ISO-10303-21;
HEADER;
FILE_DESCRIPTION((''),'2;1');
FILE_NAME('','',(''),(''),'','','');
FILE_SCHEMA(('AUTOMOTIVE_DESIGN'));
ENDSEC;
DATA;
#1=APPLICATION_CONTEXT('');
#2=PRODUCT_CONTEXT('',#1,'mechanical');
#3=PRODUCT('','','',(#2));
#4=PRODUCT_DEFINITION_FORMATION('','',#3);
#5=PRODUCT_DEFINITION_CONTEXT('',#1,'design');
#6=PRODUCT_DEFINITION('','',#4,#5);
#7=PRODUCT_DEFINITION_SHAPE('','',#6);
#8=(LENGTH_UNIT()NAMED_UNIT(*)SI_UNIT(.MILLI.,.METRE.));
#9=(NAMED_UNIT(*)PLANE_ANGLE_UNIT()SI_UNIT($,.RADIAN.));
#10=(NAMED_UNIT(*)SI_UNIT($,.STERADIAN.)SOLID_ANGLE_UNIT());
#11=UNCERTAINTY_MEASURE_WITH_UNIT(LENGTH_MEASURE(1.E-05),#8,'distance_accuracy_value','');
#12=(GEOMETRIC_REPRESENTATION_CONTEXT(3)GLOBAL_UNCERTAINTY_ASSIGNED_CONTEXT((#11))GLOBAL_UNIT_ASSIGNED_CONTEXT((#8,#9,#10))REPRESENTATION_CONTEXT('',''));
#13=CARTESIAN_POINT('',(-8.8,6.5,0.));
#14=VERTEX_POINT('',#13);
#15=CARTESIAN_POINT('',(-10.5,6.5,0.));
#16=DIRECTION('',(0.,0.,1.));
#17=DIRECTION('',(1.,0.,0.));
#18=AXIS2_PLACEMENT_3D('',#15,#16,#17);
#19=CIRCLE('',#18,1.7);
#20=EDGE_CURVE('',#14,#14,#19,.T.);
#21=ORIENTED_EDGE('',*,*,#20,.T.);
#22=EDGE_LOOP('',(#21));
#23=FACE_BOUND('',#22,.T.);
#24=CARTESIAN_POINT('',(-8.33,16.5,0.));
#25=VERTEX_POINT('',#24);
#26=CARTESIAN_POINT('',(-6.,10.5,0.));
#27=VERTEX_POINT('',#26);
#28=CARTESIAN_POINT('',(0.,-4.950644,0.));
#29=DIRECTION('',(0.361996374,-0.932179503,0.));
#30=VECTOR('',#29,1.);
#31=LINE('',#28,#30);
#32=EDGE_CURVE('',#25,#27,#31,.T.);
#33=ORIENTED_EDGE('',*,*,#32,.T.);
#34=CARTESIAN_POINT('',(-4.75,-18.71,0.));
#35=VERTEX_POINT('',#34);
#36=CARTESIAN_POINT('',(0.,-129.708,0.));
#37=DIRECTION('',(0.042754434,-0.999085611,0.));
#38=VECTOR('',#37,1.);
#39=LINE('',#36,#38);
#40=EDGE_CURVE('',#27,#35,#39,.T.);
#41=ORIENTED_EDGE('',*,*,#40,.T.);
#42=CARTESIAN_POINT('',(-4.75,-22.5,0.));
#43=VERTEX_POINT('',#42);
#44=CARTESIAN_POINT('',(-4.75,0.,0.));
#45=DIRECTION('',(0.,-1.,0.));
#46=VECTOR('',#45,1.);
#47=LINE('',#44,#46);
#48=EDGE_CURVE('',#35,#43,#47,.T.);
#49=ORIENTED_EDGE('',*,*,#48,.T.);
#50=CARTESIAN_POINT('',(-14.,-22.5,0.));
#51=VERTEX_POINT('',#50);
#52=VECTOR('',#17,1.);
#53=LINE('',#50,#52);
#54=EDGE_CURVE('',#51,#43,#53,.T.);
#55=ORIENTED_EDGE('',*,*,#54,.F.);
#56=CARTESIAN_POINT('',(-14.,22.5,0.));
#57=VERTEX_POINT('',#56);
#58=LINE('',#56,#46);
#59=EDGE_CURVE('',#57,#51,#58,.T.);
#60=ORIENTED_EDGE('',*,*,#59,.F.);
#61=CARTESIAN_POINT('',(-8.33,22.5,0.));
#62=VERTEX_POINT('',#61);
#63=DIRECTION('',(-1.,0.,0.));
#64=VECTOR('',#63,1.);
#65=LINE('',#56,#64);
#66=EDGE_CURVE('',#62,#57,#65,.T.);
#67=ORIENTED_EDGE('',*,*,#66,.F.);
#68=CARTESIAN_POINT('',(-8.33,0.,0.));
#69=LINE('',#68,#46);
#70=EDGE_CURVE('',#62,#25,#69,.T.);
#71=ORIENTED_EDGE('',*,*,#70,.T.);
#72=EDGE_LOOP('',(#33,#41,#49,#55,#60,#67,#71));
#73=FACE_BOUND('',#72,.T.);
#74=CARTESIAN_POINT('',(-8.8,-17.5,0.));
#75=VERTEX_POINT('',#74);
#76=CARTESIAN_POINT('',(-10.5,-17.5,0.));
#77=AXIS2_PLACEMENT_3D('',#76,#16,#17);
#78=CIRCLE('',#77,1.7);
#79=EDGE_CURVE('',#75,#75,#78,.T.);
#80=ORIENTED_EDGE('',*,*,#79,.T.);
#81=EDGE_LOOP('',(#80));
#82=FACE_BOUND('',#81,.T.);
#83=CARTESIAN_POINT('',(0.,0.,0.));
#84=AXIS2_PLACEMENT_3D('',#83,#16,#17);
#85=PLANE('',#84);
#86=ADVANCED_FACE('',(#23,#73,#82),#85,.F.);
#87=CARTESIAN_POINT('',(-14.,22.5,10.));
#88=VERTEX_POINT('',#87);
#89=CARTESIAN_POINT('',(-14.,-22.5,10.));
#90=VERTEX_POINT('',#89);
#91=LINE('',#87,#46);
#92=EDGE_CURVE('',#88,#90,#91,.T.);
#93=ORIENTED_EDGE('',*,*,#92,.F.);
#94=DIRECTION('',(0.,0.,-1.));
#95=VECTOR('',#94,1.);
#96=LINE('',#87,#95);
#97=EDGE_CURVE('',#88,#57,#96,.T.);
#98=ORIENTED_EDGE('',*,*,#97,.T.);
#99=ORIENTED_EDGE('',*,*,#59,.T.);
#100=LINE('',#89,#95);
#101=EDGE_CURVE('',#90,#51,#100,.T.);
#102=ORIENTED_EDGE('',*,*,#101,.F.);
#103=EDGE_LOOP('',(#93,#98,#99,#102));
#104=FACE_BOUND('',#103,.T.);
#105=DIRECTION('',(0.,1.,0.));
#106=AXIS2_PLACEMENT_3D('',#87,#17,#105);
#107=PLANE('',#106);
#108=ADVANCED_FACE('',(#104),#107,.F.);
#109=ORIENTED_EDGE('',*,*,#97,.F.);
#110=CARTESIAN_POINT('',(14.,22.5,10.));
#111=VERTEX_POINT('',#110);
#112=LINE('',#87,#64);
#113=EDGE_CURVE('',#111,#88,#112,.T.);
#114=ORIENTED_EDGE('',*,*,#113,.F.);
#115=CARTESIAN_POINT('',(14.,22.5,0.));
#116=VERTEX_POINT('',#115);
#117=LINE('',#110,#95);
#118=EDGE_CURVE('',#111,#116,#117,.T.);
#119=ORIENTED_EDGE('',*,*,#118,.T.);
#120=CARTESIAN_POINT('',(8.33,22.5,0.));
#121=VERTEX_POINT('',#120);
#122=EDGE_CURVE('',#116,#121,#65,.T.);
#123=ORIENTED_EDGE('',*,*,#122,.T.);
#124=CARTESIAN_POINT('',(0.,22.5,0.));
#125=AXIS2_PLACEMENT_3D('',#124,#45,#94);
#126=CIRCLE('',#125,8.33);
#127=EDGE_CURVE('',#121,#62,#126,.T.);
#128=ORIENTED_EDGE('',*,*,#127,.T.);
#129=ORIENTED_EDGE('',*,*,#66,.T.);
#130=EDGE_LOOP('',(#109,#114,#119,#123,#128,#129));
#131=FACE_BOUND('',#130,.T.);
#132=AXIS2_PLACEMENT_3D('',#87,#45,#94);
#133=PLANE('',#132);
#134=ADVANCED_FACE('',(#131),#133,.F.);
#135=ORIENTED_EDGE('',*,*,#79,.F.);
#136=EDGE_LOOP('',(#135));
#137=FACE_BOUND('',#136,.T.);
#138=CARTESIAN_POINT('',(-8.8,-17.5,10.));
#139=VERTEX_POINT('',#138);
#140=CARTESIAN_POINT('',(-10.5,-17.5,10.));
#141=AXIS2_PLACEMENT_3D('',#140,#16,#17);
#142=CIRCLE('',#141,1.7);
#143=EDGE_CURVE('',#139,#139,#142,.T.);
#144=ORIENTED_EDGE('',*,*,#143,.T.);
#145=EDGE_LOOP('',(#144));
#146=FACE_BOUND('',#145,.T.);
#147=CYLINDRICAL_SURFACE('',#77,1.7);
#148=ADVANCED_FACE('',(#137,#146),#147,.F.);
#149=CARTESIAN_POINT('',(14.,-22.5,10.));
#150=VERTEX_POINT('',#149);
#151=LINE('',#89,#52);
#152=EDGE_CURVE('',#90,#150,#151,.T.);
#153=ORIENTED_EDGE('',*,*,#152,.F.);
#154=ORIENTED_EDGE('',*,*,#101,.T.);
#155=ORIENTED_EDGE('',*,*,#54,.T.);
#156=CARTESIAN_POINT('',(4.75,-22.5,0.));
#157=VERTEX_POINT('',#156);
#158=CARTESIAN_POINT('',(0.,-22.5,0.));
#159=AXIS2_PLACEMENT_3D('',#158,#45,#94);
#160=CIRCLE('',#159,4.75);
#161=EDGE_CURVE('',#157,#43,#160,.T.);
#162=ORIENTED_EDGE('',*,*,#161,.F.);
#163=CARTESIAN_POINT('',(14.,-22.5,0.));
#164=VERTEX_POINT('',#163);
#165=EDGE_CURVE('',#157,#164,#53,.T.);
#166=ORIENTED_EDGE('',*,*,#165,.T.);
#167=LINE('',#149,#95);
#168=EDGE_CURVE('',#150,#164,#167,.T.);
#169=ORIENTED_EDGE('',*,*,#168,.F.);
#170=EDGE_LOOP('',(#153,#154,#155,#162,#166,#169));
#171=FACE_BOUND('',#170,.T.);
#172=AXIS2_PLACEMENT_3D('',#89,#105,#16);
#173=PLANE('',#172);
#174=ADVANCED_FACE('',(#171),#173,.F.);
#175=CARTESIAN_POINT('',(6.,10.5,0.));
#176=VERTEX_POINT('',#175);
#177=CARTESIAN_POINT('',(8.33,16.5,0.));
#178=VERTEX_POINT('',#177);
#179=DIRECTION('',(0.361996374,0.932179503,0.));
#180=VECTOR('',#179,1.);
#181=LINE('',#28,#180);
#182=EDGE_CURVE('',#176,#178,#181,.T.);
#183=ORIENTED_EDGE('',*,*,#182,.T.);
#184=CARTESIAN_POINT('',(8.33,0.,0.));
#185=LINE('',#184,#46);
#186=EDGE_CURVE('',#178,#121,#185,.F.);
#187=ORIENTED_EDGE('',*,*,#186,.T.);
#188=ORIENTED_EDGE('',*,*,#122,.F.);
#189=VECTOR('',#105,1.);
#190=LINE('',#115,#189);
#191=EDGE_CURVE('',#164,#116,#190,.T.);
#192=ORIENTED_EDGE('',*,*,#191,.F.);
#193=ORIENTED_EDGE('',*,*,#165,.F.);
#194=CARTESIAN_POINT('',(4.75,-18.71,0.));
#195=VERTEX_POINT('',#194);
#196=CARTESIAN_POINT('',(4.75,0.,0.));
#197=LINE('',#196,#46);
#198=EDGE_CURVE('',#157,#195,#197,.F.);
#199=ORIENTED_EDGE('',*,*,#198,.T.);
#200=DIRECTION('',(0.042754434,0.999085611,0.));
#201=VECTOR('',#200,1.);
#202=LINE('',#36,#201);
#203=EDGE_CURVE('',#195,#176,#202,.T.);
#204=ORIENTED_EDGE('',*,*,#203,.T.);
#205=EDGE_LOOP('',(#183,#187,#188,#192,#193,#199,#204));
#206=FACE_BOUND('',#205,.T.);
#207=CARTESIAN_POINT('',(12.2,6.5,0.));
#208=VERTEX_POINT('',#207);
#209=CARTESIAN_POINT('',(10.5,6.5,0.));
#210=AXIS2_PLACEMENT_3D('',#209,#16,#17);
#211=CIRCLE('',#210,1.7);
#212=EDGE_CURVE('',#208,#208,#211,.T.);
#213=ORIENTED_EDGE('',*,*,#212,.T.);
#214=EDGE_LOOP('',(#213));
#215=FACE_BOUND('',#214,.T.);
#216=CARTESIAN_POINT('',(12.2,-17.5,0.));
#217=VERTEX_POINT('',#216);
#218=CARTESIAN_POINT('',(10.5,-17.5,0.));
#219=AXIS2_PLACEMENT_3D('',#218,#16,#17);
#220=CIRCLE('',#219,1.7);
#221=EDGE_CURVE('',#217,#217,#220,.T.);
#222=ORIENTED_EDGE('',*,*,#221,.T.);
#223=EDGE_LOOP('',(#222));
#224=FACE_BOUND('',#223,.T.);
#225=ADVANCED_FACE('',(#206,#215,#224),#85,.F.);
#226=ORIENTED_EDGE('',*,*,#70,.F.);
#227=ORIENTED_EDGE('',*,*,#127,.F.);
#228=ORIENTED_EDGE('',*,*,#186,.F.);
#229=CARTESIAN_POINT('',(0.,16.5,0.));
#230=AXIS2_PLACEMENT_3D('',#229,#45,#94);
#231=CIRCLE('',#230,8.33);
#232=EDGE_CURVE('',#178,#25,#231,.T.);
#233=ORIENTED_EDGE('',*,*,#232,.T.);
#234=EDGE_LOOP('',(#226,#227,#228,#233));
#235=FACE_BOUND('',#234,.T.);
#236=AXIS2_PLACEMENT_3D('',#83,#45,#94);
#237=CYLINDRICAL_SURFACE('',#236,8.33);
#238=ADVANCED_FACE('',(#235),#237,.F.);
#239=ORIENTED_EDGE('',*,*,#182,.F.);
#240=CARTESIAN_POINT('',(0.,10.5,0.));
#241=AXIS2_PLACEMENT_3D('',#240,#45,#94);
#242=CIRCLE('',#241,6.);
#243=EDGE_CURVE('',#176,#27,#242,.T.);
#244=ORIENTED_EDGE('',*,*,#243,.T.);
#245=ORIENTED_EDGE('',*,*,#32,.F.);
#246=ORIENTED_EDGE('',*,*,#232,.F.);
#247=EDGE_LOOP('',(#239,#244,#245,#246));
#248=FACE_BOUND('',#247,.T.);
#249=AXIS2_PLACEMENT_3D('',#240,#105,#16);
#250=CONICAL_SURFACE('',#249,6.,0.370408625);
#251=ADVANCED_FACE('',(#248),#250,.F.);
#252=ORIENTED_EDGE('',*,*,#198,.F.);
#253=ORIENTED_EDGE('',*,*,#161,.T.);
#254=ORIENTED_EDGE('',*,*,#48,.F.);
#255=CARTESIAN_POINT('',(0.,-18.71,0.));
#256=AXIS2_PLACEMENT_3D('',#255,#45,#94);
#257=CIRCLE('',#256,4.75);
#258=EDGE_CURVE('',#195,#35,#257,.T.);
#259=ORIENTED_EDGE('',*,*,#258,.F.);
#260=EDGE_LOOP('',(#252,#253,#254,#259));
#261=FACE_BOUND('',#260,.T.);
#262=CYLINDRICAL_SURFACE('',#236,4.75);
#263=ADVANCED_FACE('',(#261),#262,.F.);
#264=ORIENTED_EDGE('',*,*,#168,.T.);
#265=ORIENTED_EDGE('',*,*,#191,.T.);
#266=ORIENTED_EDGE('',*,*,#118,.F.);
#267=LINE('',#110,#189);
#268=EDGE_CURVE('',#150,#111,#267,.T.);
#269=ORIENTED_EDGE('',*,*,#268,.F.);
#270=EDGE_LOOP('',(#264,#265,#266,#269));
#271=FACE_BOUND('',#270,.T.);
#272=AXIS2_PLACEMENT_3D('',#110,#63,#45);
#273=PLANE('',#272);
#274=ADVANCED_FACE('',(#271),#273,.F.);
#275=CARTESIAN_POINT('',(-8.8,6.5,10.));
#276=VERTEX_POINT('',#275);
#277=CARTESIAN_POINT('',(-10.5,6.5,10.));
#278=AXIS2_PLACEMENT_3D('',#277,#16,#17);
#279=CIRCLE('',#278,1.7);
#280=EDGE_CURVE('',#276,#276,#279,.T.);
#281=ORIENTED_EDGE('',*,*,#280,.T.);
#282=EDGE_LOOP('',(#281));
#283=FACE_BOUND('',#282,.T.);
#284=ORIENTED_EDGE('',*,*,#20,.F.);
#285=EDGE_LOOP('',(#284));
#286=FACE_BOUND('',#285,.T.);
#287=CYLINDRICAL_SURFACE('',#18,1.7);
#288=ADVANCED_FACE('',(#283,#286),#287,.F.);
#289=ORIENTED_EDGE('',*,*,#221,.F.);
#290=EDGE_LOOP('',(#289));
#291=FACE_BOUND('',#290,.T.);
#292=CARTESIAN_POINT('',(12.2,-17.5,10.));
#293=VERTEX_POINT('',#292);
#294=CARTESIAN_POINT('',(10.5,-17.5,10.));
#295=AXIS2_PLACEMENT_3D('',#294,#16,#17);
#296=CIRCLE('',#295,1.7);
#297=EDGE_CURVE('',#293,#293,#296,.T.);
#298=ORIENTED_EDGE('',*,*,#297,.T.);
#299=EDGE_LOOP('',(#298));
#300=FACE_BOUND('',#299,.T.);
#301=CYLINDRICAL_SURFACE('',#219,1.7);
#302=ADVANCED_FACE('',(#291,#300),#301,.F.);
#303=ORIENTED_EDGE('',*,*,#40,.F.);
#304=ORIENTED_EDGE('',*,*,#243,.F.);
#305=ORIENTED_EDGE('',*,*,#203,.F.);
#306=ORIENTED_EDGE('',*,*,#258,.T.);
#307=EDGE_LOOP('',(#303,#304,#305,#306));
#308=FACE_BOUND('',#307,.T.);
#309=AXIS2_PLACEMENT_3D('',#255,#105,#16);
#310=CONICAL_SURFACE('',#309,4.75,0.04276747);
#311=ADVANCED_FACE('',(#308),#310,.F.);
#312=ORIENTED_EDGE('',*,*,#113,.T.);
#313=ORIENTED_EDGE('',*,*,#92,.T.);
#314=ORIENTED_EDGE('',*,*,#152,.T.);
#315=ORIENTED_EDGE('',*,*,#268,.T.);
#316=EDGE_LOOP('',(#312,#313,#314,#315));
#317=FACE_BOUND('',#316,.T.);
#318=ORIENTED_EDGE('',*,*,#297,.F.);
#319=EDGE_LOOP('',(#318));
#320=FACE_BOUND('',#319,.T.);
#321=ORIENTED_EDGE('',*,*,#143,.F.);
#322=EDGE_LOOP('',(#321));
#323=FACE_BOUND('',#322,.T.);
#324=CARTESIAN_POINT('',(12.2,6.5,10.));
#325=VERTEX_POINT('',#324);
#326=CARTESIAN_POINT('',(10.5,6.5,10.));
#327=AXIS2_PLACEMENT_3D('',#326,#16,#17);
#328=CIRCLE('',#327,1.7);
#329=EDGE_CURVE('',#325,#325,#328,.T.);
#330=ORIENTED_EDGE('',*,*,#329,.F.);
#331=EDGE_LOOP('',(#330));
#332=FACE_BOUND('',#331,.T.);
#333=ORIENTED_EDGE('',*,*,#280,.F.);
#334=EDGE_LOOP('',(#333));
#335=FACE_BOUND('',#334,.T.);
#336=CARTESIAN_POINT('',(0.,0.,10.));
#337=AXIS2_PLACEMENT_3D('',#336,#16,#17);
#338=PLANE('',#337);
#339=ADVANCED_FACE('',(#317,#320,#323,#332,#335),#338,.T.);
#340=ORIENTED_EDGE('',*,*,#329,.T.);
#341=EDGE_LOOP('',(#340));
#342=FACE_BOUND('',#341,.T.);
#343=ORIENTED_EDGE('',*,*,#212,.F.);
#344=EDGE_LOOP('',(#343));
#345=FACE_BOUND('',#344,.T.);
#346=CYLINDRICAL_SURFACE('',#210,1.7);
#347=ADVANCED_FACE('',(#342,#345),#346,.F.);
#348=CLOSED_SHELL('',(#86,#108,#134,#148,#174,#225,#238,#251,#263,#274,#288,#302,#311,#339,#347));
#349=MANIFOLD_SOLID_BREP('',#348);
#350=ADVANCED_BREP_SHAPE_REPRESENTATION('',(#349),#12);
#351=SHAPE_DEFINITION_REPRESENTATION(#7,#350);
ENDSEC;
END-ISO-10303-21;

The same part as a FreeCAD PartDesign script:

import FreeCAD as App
import Part
import Sketcher

V = App.Vector
Q = App.Units.Quantity


def add_polygon(sketch, points):
    """Adds a closed chain of lines whose ends are joined by coincident constraints."""
    first, n = sketch.GeometryCount, len(points)
    for a, b in zip(points, points[1:] + points[:1]):
        sketch.addGeometry(Part.LineSegment(App.Vector(*a, 0), App.Vector(*b, 0)), False)
    for i in range(n):
        sketch.addConstraint(Sketcher.Constraint("Coincident", first + i, 2, first + (i + 1) % n, 1))

doc = App.newDocument("Part")
body = doc.addObject("PartDesign::Body", "Body")

# Sketch on XY plane
sketch1 = doc.addObject("Sketcher::SketchObject", "Sketch")
body.addObject(sketch1)
sketch1.AttachmentSupport = (doc.XY_Plane, [""])
sketch1.MapMode = "FlatFace"
add_polygon(sketch1, [(-14, 22), (-14, -22), (14, -22), (14, 22)])  # lines 0-3
sketch1.addConstraint(Sketcher.Constraint("Vertical", 0))
sketch1.addConstraint(Sketcher.Constraint("Horizontal", 1))
sketch1.addConstraint(Sketcher.Constraint("Vertical", 2))
sketch1.addConstraint(Sketcher.Constraint("Horizontal", 3))
sketch1.addConstraint(Sketcher.Constraint("Symmetric", 0, 2, 2, 2, -1, 1))
sketch1.addConstraint(Sketcher.Constraint("DistanceX", 1, 1, 1, 2, Q("28 mm")))
sketch1.addConstraint(Sketcher.Constraint("DistanceY", 0, 2, 0, 1, Q("45 mm")))
pad1 = doc.addObject("PartDesign::Pad", "Pad")
body.addObject(pad1)
pad1.Profile = sketch1
pad1.Length = 10

# Sketch on XY plane
sketch2 = doc.addObject("Sketcher::SketchObject", "Sketch001")
body.addObject(sketch2)
sketch2.AttachmentSupport = (doc.XY_Plane, [""])
sketch2.MapMode = "FlatFace"
add_polygon(sketch2, [(8.3, 22.5), (0, 22.5), (0, -22.5), (4.8, -22.5), (4.8, -18.7), (6, 10.5), (8.3, 16.5)])  # lines 0-6
sketch2.addConstraint(Sketcher.Constraint("Horizontal", 0))
sketch2.addConstraint(Sketcher.Constraint("Vertical", 1))
sketch2.addConstraint(Sketcher.Constraint("Horizontal", 2))
sketch2.addConstraint(Sketcher.Constraint("Vertical", 3))
sketch2.addConstraint(Sketcher.Constraint("Vertical", 6))
sketch2.addConstraint(Sketcher.Constraint("Symmetric", 0, 2, 1, 2, -1, 1))
sketch2.addConstraint(Sketcher.Constraint("DistanceY", 1, 2, 1, 1, Q("45 mm")))
sketch2.addConstraint(Sketcher.Constraint("DistanceY", 6, 1, 6, 2, Q("6 mm")))
sketch2.addConstraint(Sketcher.Constraint("DistanceX", -1, 1, 4, 2, Q("6 mm")))
sketch2.addConstraint(Sketcher.Constraint("DistanceY", 4, 2, 0, 2, Q("12 mm")))
sketch2.addConstraint(Sketcher.Constraint("DistanceX", 0, 2, 0, 1, Q("8.33 mm")))
sketch2.addConstraint(Sketcher.Constraint("DistanceX", 2, 1, 2, 2, Q("4.75 mm")))
sketch2.addConstraint(Sketcher.Constraint("DistanceY", 3, 1, 3, 2, Q("3.79 mm")))
groove = doc.addObject("PartDesign::Groove", "Groove")
body.addObject(groove)
groove.Profile = sketch2
groove.ReferenceAxis = (sketch2, ["V_Axis"])
groove.Angle = 360

# Sketch on XY plane
sketch3 = doc.addObject("Sketcher::SketchObject", "Sketch002")
body.addObject(sketch3)
sketch3.AttachmentSupport = (doc.XY_Plane, [""])
sketch3.MapMode = "FlatFace"
sketch3.AttachmentOffset = App.Placement(V(0, 0, 10), App.Rotation())
sketch3.addGeometry(Part.Circle(V(-10.5, 6.5, 0), V(0, 0, 1), 1.7), False)
sketch3.addGeometry(Part.Circle(V(-10.5, -17.5, 0), V(0, 0, 1), 1.7), False)
sketch3.addGeometry(Part.Circle(V(10.5, 6.5, 0), V(0, 0, 1), 1.7), False)
sketch3.addGeometry(Part.Circle(V(10.5, -17.5, 0), V(0, 0, 1), 1.7), False)
sketch3.addConstraint(Sketcher.Constraint("Equal", 0, 1))
sketch3.addConstraint(Sketcher.Constraint("Equal", 1, 2))
sketch3.addConstraint(Sketcher.Constraint("Equal", 2, 3))
sketch3.addConstraint(Sketcher.Constraint("Symmetric", 0, 3, 2, 3, -2))
sketch3.addConstraint(Sketcher.Constraint("Symmetric", 1, 3, 3, 3, -2))
sketch3.addConstraint(Sketcher.Constraint("Vertical", 0, 3, 1, 3))
sketch3.addConstraint(Sketcher.Constraint("Diameter", 0, Q("3.4 mm")))
sketch3.addConstraint(Sketcher.Constraint("DistanceY", 1, 3, 0, 3, Q("24 mm")))
sketch3.addConstraint(Sketcher.Constraint("DistanceX", 0, 3, 2, 3, Q("21 mm")))
sketch3.addConstraint(Sketcher.Constraint("DistanceY", -1, 1, 0, 3, Q("6.5 mm")))
pocket1 = doc.addObject("PartDesign::Pocket", "Pocket")
body.addObject(pocket1)
pocket1.Profile = sketch3
pocket1.Type = "ThroughAll"

doc.recompute()
